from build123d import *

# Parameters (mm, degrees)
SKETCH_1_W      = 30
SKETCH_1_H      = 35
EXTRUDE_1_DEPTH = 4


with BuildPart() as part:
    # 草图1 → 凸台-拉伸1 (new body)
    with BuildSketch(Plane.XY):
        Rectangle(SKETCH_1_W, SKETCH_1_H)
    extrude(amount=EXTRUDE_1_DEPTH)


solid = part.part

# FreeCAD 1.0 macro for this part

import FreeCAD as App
import Part
import Sketcher
from FreeCAD import Vector


def add_polygon(sketch, points):
    """Adds a closed chain of lines whose ends are joined by coincident constraints."""
    first, n = sketch.GeometryCount, len(points)
    for a, b in zip(points, points[1:] + points[:1]):
        sketch.addGeometry(Part.LineSegment(App.Vector(*a, 0), App.Vector(*b, 0)), False)
    for i in range(n):
        sketch.addConstraint(Sketcher.Constraint("Coincident", first + i, 2, first + (i + 1) % n, 1))

doc = App.newDocument("Part")
body = doc.addObject("PartDesign::Body", "Body")

# Sketch on XY plane
sketch1 = body.newObject("Sketcher::SketchObject", "Sketch")
sketch1.AttachmentSupport = (doc.getObject("XY_Plane"), [""])
sketch1.MapMode = "FlatFace"
add_polygon(sketch1, [(-15, 18), (-15, -18), (15, -18), (15, 18)])  # lines 0-3
sketch1.addConstraint([
    Sketcher.Constraint("Vertical", 0),
    Sketcher.Constraint("Horizontal", 1),
    Sketcher.Constraint("Vertical", 2),
    Sketcher.Constraint("Horizontal", 3),
    Sketcher.Constraint("Symmetric", 0, 2, 2, 2, -1, 1),
    Sketcher.Constraint("DistanceX", 1, 1, 1, 2, 30.0),
    Sketcher.Constraint("DistanceY", 0, 2, 0, 1, 35.0),
])
pad1 = body.newObject("PartDesign::Pad", "Pad")
pad1.Profile = sketch1
pad1.Length = 4

doc.recompute()
